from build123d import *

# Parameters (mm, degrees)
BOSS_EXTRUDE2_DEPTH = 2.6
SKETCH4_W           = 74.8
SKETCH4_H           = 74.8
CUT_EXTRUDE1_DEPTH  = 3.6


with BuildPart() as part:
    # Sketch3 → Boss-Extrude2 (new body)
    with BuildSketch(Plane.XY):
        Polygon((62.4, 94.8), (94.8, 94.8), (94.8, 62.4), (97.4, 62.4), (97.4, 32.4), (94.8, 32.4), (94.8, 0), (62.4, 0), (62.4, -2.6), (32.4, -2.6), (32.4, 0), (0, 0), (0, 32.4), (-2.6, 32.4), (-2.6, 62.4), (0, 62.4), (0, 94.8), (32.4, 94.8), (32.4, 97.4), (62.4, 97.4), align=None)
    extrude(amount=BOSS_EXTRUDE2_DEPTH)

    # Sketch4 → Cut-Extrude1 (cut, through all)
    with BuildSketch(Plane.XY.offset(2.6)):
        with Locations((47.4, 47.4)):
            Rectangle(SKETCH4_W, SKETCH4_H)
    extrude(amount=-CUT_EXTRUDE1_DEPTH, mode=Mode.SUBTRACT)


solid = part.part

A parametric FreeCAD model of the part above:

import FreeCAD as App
import Part
import Sketcher

V = App.Vector
Q = App.Units.Quantity


def add_polygon(sketch, points):
    """Adds a closed chain of lines whose ends are joined by coincident constraints."""
    first, n = sketch.GeometryCount, len(points)
    for a, b in zip(points, points[1:] + points[:1]):
        sketch.addGeometry(Part.LineSegment(App.Vector(*a, 0), App.Vector(*b, 0)), False)
    for i in range(n):
        sketch.addConstraint(Sketcher.Constraint("Coincident", first + i, 2, first + (i + 1) % n, 1))

doc = App.newDocument("Part")
body = doc.addObject("PartDesign::Body", "Body")

# Sketch on XY plane
sketch1 = doc.addObject("Sketcher::SketchObject", "Sketch")
body.addObject(sketch1)
sketch1.AttachmentSupport = (doc.XY_Plane, [""])
sketch1.MapMode = "FlatFace"
add_polygon(sketch1, [(94.8, 94.8), (62.4, 94.8), (62.4, 97.4), (32.4, 97.4), (32.4, 94.8), (0, 94.8), (0, 62.4), (-2.6, 62.4), (-2.6, 32.4), (0, 32.4), (0, 0), (32.4, 0), (32.4, -2.6), (62.4, -2.6), (62.4, 0), (94.8, 0), (94.8, 32.4), (97.4, 32.4), (97.4, 62.4), (94.8, 62.4)])  # lines 0-19
sketch1.addConstraint([
    Sketcher.Constraint("Horizontal", 0),
    Sketcher.Constraint("Vertical", 1),
    Sketcher.Constraint("Horizontal", 2),
    Sketcher.Constraint("Vertical", 3),
    Sketcher.Constraint("Horizontal", 4),
    Sketcher.Constraint("Vertical", 5),
    Sketcher.Constraint("Horizontal", 6),
    Sketcher.Constraint("Vertical", 7),
    Sketcher.Constraint("Horizontal", 8),
    Sketcher.Constraint("Vertical", 9),
    Sketcher.Constraint("Horizontal", 10),
    Sketcher.Constraint("Vertical", 11),
    Sketcher.Constraint("Horizontal", 12),
    Sketcher.Constraint("Vertical", 13),
    Sketcher.Constraint("Horizontal", 14),
    Sketcher.Constraint("Vertical", 15),
    Sketcher.Constraint("Horizontal", 16),
    Sketcher.Constraint("Vertical", 17),
    Sketcher.Constraint("Horizontal", 18),
    Sketcher.Constraint("Vertical", 19),
    Sketcher.Constraint("Coincident", 9, 2, -1, 1),
    Sketcher.Constraint("PointOnObject", 4, 2, -2),
    Sketcher.Constraint("PointOnObject", 13, 2, -1),
    Sketcher.Constraint("Horizontal", 0, 2, 3, 2),
    Sketcher.Constraint("Horizontal", 8, 2, 15, 2),
    Sketcher.Constraint("Horizontal", 6, 2, 17, 2),
    Sketcher.Constraint("Vertical", 3, 2, 10, 2),
    Sketcher.Constraint("Vertical", 1, 2, 12, 2),
    Sketcher.Constraint("Vertical", 15, 2, 18, 2),
    Sketcher.Constraint("Equal", 0, 4),
    Sketcher.Constraint("Equal", 8, 16),
    Sketcher.Constraint("Equal", 18, 1),
    Sketcher.Constraint("Equal", 14, 5),
    Sketcher.Constraint("Equal", 12, 7),
    Sketcher.Constraint("Equal", 5, 9),
    Sketcher.Constraint("Equal", 3, 11),
    Sketcher.Constraint("DistanceX", 2, 2, 2, 1, Q("30 mm")),
    Sketcher.Constraint("DistanceX", 0, 2, 0, 1, Q("32.4 mm")),
    Sketcher.Constraint("DistanceX", 6, 2, 6, 1, Q("2.6 mm")),
])
pad1 = doc.addObject("PartDesign::Pad", "Pad")
body.addObject(pad1)
pad1.Profile = sketch1
pad1.Length = 2.6

# Sketch on XY plane
sketch2 = doc.addObject("Sketcher::SketchObject", "Sketch001")
body.addObject(sketch2)
sketch2.AttachmentSupport = (doc.XY_Plane, [""])
sketch2.MapMode = "FlatFace"
sketch2.AttachmentOffset = App.Placement(V(0, 0, 2.6), App.Rotation())
add_polygon(sketch2, [(10, 85), (10, 10), (85, 10), (85, 85)])  # lines 0-3
sketch2.addConstraint([
    Sketcher.Constraint("Vertical", 0),
    Sketcher.Constraint("Horizontal", 1),
    Sketcher.Constraint("Vertical", 2),
    Sketcher.Constraint("Horizontal", 3),
    Sketcher.Constraint("Equal", 3, 0),
    Sketcher.Constraint("DistanceX", 1, 1, 1, 2, Q("74.8 mm")),
    Sketcher.Constraint("DistanceX", -1, 1, 0, 2, Q("10 mm")),
    Sketcher.Constraint("DistanceY", -1, 1, 0, 2, Q("10 mm")),
])
pocket1 = doc.addObject("PartDesign::Pocket", "Pocket")
body.addObject(pocket1)
pocket1.Profile = sketch2
pocket1.Type = "ThroughAll"

doc.recompute()
